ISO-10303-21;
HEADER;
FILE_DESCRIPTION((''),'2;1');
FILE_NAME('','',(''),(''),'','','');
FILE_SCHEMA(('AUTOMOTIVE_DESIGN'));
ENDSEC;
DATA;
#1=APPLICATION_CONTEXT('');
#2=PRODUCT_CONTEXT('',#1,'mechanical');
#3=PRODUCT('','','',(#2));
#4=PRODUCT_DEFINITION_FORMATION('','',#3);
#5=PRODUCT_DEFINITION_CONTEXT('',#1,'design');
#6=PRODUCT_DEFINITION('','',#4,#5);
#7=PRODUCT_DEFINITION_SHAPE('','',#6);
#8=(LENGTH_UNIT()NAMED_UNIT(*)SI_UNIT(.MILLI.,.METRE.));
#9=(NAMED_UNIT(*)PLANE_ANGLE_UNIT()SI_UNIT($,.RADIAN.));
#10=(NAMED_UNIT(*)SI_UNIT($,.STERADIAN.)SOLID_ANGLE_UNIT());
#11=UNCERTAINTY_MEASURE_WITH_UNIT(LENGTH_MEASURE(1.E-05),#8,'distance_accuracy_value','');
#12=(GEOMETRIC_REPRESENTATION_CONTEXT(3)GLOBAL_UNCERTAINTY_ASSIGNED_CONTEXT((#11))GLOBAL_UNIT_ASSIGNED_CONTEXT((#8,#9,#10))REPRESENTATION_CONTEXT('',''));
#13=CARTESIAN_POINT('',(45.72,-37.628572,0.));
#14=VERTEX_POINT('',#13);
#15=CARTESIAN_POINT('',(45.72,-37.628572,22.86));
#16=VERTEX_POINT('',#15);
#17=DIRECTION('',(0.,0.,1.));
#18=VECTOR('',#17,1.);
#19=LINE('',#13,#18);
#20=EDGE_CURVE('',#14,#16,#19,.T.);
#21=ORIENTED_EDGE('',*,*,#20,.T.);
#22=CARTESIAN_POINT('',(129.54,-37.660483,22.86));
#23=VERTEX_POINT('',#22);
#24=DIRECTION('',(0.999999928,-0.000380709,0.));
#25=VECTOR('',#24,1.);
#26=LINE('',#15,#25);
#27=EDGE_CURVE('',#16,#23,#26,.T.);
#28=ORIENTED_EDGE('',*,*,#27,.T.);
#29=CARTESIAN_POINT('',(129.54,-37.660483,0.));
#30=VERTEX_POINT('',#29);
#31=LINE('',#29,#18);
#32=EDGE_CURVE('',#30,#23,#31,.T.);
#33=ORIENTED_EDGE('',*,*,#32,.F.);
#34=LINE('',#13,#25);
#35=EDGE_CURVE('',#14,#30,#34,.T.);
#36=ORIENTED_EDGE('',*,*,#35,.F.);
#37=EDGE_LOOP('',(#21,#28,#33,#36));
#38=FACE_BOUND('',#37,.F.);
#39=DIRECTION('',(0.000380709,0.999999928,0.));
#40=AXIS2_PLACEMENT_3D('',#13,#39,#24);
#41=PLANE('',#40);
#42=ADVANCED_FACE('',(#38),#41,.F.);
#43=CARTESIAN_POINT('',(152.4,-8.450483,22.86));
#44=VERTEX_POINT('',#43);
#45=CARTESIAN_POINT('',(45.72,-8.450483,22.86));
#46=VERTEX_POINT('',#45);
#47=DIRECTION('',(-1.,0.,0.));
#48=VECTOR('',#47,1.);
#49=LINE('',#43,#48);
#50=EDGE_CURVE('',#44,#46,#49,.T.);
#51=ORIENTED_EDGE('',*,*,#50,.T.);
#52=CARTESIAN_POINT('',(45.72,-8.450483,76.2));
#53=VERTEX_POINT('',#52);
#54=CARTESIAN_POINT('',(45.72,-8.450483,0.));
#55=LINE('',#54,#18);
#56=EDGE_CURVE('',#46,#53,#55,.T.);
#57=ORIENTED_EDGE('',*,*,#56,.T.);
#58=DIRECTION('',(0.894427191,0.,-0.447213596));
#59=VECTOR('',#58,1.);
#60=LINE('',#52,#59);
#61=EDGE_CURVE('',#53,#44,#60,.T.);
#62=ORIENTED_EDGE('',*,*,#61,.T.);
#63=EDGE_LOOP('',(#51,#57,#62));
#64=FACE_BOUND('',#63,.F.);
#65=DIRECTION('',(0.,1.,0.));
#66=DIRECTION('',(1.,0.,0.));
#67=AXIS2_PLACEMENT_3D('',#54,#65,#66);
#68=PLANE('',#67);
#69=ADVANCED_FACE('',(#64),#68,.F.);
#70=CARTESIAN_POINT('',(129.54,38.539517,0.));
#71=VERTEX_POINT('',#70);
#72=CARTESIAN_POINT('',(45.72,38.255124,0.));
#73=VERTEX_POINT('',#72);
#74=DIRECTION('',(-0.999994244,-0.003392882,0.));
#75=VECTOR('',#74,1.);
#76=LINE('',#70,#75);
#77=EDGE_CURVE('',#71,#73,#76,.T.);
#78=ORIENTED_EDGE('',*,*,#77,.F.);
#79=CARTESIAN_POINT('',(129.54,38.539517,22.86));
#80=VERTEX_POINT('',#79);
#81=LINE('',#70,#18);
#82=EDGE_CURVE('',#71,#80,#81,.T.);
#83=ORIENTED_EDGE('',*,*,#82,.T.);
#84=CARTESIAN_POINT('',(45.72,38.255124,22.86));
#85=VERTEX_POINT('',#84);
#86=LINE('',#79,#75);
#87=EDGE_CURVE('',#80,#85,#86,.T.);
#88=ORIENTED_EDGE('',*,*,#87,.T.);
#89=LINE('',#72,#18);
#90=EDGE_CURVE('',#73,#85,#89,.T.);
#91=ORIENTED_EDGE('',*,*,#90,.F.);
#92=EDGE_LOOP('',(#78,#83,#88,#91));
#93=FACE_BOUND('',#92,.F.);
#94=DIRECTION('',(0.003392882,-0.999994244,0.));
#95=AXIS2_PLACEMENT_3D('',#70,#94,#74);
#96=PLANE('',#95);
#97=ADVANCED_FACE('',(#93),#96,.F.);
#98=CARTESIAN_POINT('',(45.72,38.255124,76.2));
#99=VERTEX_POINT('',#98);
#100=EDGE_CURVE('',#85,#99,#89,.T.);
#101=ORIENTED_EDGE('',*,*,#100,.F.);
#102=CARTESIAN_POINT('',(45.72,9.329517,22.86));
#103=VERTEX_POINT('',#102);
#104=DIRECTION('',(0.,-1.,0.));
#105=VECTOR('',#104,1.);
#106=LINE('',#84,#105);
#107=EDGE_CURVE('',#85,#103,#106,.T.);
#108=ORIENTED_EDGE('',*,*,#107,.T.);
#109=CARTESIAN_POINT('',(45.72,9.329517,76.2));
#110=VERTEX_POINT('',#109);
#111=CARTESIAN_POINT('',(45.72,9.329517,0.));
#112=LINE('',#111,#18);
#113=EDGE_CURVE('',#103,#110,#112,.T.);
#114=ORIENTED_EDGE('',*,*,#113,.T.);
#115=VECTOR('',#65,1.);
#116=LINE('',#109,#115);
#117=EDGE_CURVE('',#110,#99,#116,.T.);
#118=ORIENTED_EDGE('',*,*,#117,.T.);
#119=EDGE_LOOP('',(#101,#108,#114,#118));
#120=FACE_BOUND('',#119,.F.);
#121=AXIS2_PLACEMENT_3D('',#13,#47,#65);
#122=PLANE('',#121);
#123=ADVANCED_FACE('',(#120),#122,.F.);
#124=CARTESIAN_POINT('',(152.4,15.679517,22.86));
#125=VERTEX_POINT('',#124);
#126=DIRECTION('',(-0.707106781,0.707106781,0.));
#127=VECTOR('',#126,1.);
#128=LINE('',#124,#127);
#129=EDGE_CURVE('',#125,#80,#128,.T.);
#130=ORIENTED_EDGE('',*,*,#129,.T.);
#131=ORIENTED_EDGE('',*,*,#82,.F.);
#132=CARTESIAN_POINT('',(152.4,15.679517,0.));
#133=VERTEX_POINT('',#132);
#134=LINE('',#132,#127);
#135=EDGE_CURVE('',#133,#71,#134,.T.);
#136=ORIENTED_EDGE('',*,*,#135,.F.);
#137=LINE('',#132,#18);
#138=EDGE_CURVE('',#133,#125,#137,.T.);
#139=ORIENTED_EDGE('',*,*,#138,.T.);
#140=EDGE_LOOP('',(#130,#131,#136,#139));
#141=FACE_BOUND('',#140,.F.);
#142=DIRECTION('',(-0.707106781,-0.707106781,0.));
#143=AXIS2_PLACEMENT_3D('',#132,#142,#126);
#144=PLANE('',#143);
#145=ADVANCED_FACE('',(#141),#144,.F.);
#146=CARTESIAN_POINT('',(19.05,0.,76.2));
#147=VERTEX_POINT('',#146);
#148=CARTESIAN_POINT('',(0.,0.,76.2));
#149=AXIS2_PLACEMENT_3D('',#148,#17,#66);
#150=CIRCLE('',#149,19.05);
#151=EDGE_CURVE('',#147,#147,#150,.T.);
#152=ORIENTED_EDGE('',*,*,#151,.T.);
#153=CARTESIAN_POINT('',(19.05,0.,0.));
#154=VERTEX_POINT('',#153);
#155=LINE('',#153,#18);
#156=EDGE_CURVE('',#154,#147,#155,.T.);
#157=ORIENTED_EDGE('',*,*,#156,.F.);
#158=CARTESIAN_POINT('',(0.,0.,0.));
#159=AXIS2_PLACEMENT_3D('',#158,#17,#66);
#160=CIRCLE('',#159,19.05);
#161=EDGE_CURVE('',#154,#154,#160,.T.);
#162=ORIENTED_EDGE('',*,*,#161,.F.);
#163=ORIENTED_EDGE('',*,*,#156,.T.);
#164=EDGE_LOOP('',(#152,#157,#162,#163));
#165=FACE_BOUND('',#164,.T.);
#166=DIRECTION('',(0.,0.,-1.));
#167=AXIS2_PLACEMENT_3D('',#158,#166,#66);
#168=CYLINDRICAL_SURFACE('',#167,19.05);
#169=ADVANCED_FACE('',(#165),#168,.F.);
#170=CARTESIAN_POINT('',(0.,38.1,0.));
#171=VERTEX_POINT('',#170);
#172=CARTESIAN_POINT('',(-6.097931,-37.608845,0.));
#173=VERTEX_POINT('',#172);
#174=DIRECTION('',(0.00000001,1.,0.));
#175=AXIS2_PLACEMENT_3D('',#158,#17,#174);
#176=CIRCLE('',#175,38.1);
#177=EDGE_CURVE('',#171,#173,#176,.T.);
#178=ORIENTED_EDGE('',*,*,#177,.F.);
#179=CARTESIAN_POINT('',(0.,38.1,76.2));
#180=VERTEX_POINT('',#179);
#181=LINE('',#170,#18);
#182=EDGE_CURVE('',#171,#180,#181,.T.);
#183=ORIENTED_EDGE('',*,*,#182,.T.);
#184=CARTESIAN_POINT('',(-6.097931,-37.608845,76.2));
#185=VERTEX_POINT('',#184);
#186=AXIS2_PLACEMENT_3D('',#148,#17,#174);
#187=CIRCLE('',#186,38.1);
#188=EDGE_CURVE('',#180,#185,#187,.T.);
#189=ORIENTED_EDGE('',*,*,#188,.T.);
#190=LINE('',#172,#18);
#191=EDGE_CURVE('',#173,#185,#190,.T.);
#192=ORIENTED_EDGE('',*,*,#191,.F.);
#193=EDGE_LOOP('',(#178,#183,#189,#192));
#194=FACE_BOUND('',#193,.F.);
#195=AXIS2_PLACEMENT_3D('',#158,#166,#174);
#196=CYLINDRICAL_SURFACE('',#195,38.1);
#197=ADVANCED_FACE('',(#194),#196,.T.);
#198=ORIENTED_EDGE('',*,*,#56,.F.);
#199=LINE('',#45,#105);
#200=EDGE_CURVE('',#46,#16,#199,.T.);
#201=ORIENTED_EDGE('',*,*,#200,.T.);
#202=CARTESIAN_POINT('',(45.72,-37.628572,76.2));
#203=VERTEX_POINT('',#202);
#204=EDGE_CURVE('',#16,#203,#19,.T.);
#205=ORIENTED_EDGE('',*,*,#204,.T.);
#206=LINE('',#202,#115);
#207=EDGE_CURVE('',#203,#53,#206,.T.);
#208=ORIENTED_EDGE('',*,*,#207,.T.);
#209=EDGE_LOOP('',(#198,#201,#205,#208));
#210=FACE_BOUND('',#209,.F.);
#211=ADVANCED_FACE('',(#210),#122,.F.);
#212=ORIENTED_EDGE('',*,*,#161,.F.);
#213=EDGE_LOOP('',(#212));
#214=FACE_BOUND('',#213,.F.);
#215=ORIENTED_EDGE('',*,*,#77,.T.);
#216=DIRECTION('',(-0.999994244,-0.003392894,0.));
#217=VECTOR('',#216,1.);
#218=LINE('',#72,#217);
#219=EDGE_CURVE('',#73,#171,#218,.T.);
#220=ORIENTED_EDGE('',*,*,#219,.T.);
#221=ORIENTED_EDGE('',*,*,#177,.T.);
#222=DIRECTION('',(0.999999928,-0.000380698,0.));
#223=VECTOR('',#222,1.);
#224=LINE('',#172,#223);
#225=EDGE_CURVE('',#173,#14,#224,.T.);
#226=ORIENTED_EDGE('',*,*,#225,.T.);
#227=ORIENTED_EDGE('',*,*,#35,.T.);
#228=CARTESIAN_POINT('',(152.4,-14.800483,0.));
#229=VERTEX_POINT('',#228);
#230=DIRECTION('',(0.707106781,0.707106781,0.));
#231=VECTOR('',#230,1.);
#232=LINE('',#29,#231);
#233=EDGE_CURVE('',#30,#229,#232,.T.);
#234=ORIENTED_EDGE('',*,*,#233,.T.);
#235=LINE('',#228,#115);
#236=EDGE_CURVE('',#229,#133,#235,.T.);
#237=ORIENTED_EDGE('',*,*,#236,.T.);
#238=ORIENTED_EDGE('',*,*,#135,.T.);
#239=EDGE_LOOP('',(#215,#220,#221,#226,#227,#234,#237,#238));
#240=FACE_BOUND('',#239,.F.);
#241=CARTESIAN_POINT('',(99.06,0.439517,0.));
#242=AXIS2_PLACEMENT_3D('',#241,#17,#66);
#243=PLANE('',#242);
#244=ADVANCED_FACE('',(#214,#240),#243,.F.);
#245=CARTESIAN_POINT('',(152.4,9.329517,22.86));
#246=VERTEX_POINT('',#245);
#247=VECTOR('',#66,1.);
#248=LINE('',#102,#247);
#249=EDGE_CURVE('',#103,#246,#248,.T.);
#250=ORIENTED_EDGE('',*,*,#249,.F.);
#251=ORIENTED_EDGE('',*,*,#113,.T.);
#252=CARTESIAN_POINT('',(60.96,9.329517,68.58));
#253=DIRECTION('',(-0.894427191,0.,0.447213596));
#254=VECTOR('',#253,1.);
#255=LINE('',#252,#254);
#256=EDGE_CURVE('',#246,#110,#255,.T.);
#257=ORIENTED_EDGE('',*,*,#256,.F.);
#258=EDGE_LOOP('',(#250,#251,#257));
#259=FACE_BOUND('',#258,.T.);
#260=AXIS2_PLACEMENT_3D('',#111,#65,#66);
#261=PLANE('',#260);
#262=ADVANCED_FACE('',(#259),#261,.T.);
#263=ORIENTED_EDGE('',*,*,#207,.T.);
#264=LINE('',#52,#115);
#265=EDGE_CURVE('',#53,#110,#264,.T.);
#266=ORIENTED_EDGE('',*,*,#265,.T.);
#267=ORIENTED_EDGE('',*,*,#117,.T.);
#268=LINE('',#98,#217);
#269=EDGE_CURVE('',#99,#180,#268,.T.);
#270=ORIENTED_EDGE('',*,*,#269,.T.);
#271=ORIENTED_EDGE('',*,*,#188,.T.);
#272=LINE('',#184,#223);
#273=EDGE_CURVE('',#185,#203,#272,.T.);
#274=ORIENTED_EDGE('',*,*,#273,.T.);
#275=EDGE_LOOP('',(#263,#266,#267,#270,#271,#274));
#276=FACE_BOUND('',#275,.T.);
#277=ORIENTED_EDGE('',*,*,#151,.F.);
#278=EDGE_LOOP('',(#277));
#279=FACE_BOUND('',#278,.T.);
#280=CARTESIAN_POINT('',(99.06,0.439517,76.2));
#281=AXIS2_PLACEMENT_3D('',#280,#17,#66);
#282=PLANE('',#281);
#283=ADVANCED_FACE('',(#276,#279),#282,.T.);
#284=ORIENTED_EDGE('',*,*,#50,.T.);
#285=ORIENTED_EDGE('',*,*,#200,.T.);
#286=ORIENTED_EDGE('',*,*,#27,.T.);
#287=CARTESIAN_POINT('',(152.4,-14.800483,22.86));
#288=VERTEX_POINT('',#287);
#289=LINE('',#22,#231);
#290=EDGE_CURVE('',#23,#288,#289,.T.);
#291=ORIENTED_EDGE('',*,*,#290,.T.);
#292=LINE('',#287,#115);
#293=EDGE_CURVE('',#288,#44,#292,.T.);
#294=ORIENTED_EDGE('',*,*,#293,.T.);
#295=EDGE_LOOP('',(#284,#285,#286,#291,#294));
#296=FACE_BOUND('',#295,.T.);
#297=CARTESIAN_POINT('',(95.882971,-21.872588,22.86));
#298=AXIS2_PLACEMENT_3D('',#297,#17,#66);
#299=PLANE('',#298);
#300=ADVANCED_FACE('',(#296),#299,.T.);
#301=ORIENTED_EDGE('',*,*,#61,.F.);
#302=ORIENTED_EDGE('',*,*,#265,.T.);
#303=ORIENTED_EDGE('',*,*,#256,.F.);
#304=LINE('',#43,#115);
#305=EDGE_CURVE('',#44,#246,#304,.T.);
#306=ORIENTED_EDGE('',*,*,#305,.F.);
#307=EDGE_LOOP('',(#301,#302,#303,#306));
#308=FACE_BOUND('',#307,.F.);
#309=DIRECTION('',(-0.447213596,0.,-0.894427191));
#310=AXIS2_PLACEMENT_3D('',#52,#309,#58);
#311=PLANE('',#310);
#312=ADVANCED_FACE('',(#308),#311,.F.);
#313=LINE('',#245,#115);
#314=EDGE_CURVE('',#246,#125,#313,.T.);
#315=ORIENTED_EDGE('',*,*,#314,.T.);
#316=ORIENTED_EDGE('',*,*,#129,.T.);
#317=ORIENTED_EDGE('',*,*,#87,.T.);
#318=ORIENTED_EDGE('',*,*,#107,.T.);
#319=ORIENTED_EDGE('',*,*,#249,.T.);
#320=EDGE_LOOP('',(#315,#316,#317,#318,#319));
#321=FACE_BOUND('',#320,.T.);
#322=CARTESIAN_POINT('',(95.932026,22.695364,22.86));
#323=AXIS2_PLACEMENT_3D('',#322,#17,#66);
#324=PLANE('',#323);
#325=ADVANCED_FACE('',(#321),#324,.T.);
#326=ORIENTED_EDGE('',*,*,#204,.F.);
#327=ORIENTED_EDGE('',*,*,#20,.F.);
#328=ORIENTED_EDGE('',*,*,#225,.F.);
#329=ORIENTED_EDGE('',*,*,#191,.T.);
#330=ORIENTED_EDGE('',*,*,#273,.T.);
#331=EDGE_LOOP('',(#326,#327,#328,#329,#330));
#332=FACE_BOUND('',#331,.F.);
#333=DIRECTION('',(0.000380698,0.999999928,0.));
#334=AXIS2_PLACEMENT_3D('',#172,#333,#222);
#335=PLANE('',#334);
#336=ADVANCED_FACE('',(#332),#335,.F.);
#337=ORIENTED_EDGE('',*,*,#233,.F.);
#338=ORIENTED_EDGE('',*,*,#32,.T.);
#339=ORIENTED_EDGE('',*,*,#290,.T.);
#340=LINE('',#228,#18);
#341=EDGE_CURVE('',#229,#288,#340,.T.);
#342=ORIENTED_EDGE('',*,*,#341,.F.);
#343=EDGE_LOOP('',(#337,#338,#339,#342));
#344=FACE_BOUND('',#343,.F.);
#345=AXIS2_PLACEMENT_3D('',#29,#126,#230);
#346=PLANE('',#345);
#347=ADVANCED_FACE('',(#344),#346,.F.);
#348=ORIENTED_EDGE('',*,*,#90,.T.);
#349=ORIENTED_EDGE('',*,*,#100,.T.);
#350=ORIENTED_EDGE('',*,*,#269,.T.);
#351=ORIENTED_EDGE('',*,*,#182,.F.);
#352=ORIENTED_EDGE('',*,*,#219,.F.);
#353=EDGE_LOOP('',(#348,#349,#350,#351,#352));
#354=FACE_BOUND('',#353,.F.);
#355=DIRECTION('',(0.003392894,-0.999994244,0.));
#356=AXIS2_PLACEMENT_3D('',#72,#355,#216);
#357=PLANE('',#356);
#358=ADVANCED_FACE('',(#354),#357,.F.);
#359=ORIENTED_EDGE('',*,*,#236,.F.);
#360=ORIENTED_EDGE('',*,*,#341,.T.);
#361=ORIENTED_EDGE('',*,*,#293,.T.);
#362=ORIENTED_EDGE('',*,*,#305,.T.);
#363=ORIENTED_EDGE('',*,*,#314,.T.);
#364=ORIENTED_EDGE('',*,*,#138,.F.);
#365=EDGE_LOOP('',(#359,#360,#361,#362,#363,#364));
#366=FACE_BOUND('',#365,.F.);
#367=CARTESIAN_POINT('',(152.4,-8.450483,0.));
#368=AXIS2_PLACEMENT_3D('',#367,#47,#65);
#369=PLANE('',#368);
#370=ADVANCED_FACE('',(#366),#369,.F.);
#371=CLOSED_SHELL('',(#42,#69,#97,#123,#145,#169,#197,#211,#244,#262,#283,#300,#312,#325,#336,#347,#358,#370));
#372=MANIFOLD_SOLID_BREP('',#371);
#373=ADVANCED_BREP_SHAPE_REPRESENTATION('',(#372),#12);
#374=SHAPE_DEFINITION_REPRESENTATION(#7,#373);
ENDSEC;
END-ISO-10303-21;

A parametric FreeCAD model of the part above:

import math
import FreeCAD as App
import Part
import Sketcher
from FreeCAD import Vector
Q = App.Units.Quantity

doc = App.newDocument("Part")
body = doc.addObject("PartDesign::Body", "Body")

sketch1 = body.newObject("Sketcher::SketchObject", "Sketch")
sketch1.AttachmentSupport = (doc.getObject("XY_Plane"), [""])
sketch1.MapMode = "FlatFace"
sketch1.addGeometry([
    Part.LineSegment(Vector(46, -8, 0), Vector(46, -38, 0)),
    Part.LineSegment(Vector(46, -38, 0), Vector(130, -38, 0)),
    Part.LineSegment(Vector(130, -38, 0), Vector(152, -15, 0)),
    Part.LineSegment(Vector(152, -15, 0), Vector(152, -8, 0)),
    Part.LineSegment(Vector(152, -8, 0), Vector(46, -8, 0)),
], False)
sketch1.addConstraint([
    Sketcher.Constraint("Coincident", 0, 2, 1, 1),
    Sketcher.Constraint("Coincident", 1, 2, 2, 1),
    Sketcher.Constraint("Coincident", 2, 2, 3, 1),
    Sketcher.Constraint("Coincident", 3, 2, 4, 1),
    Sketcher.Constraint("Coincident", 4, 2, 0, 1),
    Sketcher.Constraint("Vertical", 0),
    Sketcher.Constraint("Vertical", 3),
    Sketcher.Constraint("Horizontal", 4),
    Sketcher.Constraint("DistanceX", 4, 2, 4, 1, Q("4.2 in")),
    Sketcher.Constraint("DistanceX", -1, 1, 2, 2, Q("6 in")),
    Sketcher.Constraint("Angle", 2, Q("45 deg")),
    Sketcher.Constraint("DistanceY", 3, 1, 3, 2, Q("0.25 in")),
    Sketcher.Constraint("DistanceX", -1, 1, 1, 2, Q("5.1 in")),
    Sketcher.Constraint("DistanceY", 0, 2, 0, 1, Q("29.178089 mm")),
    Sketcher.Constraint("DistanceY", 0, 2, -1, 1, Q("37.628572 mm")),
])
pad1 = body.newObject("PartDesign::Pad", "Pad")
pad1.Profile = sketch1
pad1.Length = Q("0.9 in")

sketch2 = body.newObject("Sketcher::SketchObject", "Sketch001")
sketch2.AttachmentSupport = (doc.getObject("XY_Plane"), [""])
sketch2.MapMode = "FlatFace"
sketch2.addGeometry([
    Part.LineSegment(Vector(46, 38, 0), Vector(0, 38, 0)),
    Part.ArcOfCircle(Part.Circle(Vector(0, 0, 0), Vector(0, 0, 1), 38), math.radians(90), math.radians(261)),
    Part.LineSegment(Vector(-6, -38, 0), Vector(46, -38, 0)),
    Part.LineSegment(Vector(46, -38, 0), Vector(46, 38, 0)),
    Part.Circle(Vector(0, 0, 0), Vector(0, 0, 1), 19),
], False)
sketch2.addConstraint([
    Sketcher.Constraint("Coincident", 0, 2, 1, 1),
    Sketcher.Constraint("Coincident", 1, 2, 2, 1),
    Sketcher.Constraint("Coincident", 2, 2, 3, 1),
    Sketcher.Constraint("Coincident", 3, 2, 0, 1),
    Sketcher.Constraint("Vertical", 3),
    Sketcher.Constraint("Coincident", 1, 3, -1, 1),
    Sketcher.Constraint("Coincident", 4, 3, -1, 1),
    Sketcher.Constraint("PointOnObject", 0, 2, -2),
    Sketcher.Constraint("Diameter", 4, Q("1.5 in")),
    Sketcher.Constraint("Radius", 1, Q("1.5 in")),
    Sketcher.Constraint("DistanceX", -1, 1, 2, 2, Q("1.8 in")),
    Sketcher.Constraint("DistanceY", 3, 1, 3, 2, Q("75.883696 mm")),
    Sketcher.Constraint("DistanceX", 1, 2, -1, 1, Q("6.097931 mm")),
    Sketcher.Constraint("DistanceY", 2, 2, -1, 1, Q("37.628572 mm")),
])
pad2 = body.newObject("PartDesign::Pad", "Pad001")
pad2.Profile = sketch2
pad2.Length = Q("3 in")

sketch3 = body.newObject("Sketcher::SketchObject", "Sketch002")
sketch3.AttachmentSupport = (doc.getObject("XY_Plane"), [""])
sketch3.MapMode = "FlatFace"
sketch3.addGeometry([
    Part.LineSegment(Vector(130, 39, 0), Vector(46, 38, 0)),
    Part.LineSegment(Vector(46, 38, 0), Vector(46, 9, 0)),
    Part.LineSegment(Vector(46, 9, 0), Vector(152, 9, 0)),
    Part.LineSegment(Vector(152, 9, 0), Vector(152, 16, 0)),
    Part.LineSegment(Vector(152, 16, 0), Vector(130, 39, 0)),
], False)
sketch3.addConstraint([
    Sketcher.Constraint("Coincident", 0, 2, 1, 1),
    Sketcher.Constraint("Coincident", 1, 2, 2, 1),
    Sketcher.Constraint("Coincident", 2, 2, 3, 1),
    Sketcher.Constraint("Coincident", 3, 2, 4, 1),
    Sketcher.Constraint("Coincident", 4, 2, 0, 1),
    Sketcher.Constraint("Vertical", 1),
    Sketcher.Constraint("Horizontal", 2),
    Sketcher.Constraint("Vertical", 3),
    Sketcher.Constraint("DistanceX", 2, 1, 2, 2, Q("4.2 in")),
    Sketcher.Constraint("DistanceX", -1, 1, 2, 2, Q("6 in")),
    Sketcher.Constraint("Angle", 4, Q("135 deg")),
    Sketcher.Constraint("DistanceY", 3, 1, 3, 2, Q("0.25 in")),
    Sketcher.Constraint("DistanceX", -1, 1, 4, 2, Q("5.1 in")),
    Sketcher.Constraint("DistanceY", 1, 2, 1, 1, Q("28.925607 mm")),
    Sketcher.Constraint("DistanceY", -1, 1, 0, 2, Q("38.255124 mm")),
])
pad3 = body.newObject("PartDesign::Pad", "Pad002")
pad3.Profile = sketch3
pad3.Length = Q("0.9 in")

sketch4 = body.newObject("Sketcher::SketchObject", "Sketch003")
sketch4.AttachmentSupport = (doc.getObject("XY_Plane"), [""])
sketch4.MapMode = "FlatFace"
sketch4.addGeometry([
    Part.LineSegment(Vector(46, 9, 0), Vector(46, -8, 0)),
    Part.LineSegment(Vector(46, -8, 0), Vector(152, -8, 0)),
    Part.LineSegment(Vector(152, -8, 0), Vector(152, 9, 0)),
    Part.LineSegment(Vector(152, 9, 0), Vector(46, 9, 0)),
], False)
sketch4.addConstraint([
    Sketcher.Constraint("Coincident", 0, 2, 1, 1),
    Sketcher.Constraint("Coincident", 1, 2, 2, 1),
    Sketcher.Constraint("Coincident", 2, 2, 3, 1),
    Sketcher.Constraint("Coincident", 3, 2, 0, 1),
    Sketcher.Constraint("Vertical", 0),
    Sketcher.Constraint("Horizontal", 1),
    Sketcher.Constraint("Vertical", 2),
    Sketcher.Constraint("Horizontal", 3),
    Sketcher.Constraint("DistanceX", 1, 1, 1, 2, Q("4.2 in")),
    Sketcher.Constraint("DistanceY", 0, 2, 0, 1, Q("0.7 in")),
    Sketcher.Constraint("DistanceX", -1, 1, 1, 2, Q("6 in")),
    Sketcher.Constraint("DistanceY", 0, 2, -1, 1, Q("8.450483 mm")),
])
pad4 = body.newObject("PartDesign::Pad", "Pad003")
pad4.Profile = sketch4
pad4.Length = Q("3 in")

sketch5 = body.newObject("Sketcher::SketchObject", "Sketch004")
sketch5.AttachmentSupport = (doc.getObject("XZ_Plane"), [""])
sketch5.MapMode = "FlatFace"
sketch5.AttachmentOffset = App.Placement(Vector(0, 0, 8.450483), App.Rotation())
sketch5.addGeometry([
    Part.LineSegment(Vector(152, 76, 0), Vector(46, 76, 0)),
    Part.LineSegment(Vector(46, 76, 0), Vector(152, 23, 0)),
    Part.LineSegment(Vector(152, 23, 0), Vector(152, 76, 0)),
], False)
sketch5.addConstraint([
    Sketcher.Constraint("Coincident", 0, 2, 1, 1),
    Sketcher.Constraint("Coincident", 1, 2, 2, 1),
    Sketcher.Constraint("Coincident", 2, 2, 0, 1),
    Sketcher.Constraint("Horizontal", 0),
    Sketcher.Constraint("Vertical", 2),
    Sketcher.Constraint("DistanceX", 0, 2, 0, 1, Q("4.2 in")),
    Sketcher.Constraint("DistanceY", 2, 1, 2, 2, Q("2.1 in")),
    Sketcher.Constraint("DistanceY", -1, 1, 0, 2, Q("3 in")),
    Sketcher.Constraint("DistanceX", -1, 1, 1, 2, Q("6 in")),
])
pocket1 = body.newObject("PartDesign::Pocket", "Pocket")
pocket1.Profile = sketch5
pocket1.Length = Q("1 in")

doc.recompute()
